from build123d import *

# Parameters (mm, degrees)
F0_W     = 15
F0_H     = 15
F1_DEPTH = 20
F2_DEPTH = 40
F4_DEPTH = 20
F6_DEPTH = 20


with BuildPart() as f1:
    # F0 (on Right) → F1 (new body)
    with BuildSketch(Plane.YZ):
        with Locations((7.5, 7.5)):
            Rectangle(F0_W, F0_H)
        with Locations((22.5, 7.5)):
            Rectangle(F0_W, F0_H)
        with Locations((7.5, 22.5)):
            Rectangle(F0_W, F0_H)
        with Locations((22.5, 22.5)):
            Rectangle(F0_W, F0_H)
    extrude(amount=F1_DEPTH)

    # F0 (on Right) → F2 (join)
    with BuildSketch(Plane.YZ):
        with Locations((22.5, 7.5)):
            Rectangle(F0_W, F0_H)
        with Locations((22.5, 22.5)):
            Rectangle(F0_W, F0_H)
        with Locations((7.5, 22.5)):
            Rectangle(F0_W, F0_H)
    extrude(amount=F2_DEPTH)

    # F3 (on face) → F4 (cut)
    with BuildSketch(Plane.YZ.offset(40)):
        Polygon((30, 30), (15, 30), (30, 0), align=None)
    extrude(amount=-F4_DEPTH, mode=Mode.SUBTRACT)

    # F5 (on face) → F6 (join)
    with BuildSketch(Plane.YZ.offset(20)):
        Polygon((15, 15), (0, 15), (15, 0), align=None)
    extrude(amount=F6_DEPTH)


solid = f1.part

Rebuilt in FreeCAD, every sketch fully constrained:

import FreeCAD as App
import Part
import Sketcher

V = App.Vector


def add_polygon(sketch, points):
    """Adds a closed chain of lines whose ends are joined by coincident constraints."""
    first, n = sketch.GeometryCount, len(points)
    for a, b in zip(points, points[1:] + points[:1]):
        sketch.addGeometry(Part.LineSegment(App.Vector(*a, 0), App.Vector(*b, 0)), False)
    for i in range(n):
        sketch.addConstraint(Sketcher.Constraint("Coincident", first + i, 2, first + (i + 1) % n, 1))

doc = App.newDocument("Part")
params = doc.addObject("Spreadsheet::Sheet", "Params")
for row, (alias, value) in enumerate([
    ("sketch1_width", "30 mm"),
    ("pad1_length", "20 mm"),
    ("sketch2_width", "15 mm"),
    ("pad2_length", "40 mm"),
    ("sketch3_width", "15 mm"),
    ("sketch3_height", "30 mm"),
    ("pocket1_length", "20 mm"),
    ("sketch4_width", "15 mm"),
    ("pad3_length", "20 mm"),
], start=1):
    params.set(f"A{row}", alias)
    params.set(f"B{row}", "=" + value)
    params.setAlias(f"B{row}", alias)

body = doc.addObject("PartDesign::Body", "Body")

# Sketch on YZ plane
sketch1 = doc.addObject("Sketcher::SketchObject", "Sketch")
body.addObject(sketch1)
sketch1.AttachmentSupport = (doc.YZ_Plane, [""])
sketch1.MapMode = "FlatFace"
add_polygon(sketch1, [(0, 0), (30, 0), (30, 30), (0, 30)])  # lines 0-3
sketch1.addConstraint([
    Sketcher.Constraint("Horizontal", 0),
    Sketcher.Constraint("Vertical", 1),
    Sketcher.Constraint("Horizontal", 2),
    Sketcher.Constraint("Vertical", 3),
    Sketcher.Constraint("Coincident", 3, 2, -1, 1),
    Sketcher.Constraint("Equal", 2, 1),
    Sketcher.Constraint("DistanceX", 0, 1, 0, 2, 30.0),
])
sketch1.setExpression("Constraints[10]", "Params.sketch1_width")
pad1 = doc.addObject("PartDesign::Pad", "Pad")
body.addObject(pad1)
pad1.Profile = sketch1
pad1.setExpression("Length", "Params.pad1_length")

# Sketch on YZ plane
sketch2 = doc.addObject("Sketcher::SketchObject", "Sketch001")
body.addObject(sketch2)
sketch2.AttachmentSupport = (doc.YZ_Plane, [""])
sketch2.MapMode = "FlatFace"
add_polygon(sketch2, [(15, 0), (30, 0), (30, 30), (0, 30), (0, 15), (15, 15)])  # lines 0-5
sketch2.addConstraint([
    Sketcher.Constraint("Horizontal", 0),
    Sketcher.Constraint("Vertical", 1),
    Sketcher.Constraint("Horizontal", 2),
    Sketcher.Constraint("Vertical", 3),
    Sketcher.Constraint("Horizontal", 4),
    Sketcher.Constraint("Vertical", 5),
    Sketcher.Constraint("PointOnObject", 0, 2, -1),
    Sketcher.Constraint("PointOnObject", 2, 2, -2),
    Sketcher.Constraint("Equal", 0, 4),
    Sketcher.Constraint("Equal", 2, 1),
    Sketcher.Constraint("Equal", 4, 3),
    Sketcher.Constraint("DistanceX", 0, 1, 0, 2, 15.0),
])
sketch2.setExpression("Constraints[17]", "Params.sketch2_width")
pad2 = doc.addObject("PartDesign::Pad", "Pad001")
body.addObject(pad2)
pad2.Profile = sketch2
pad2.setExpression("Length", "Params.pad2_length")

# Sketch on YZ plane
sketch3 = doc.addObject("Sketcher::SketchObject", "Sketch002")
body.addObject(sketch3)
sketch3.AttachmentSupport = (doc.YZ_Plane, [""])
sketch3.MapMode = "FlatFace"
sketch3.AttachmentOffset = App.Placement(V(0, 0, 40), App.Rotation())
add_polygon(sketch3, [(30, 30), (15, 30), (30, 0)])  # lines 0-2
sketch3.addConstraint([
    Sketcher.Constraint("Horizontal", 0),
    Sketcher.Constraint("Vertical", 2),
    Sketcher.Constraint("PointOnObject", 1, 2, -1),
    Sketcher.Constraint("DistanceX", 0, 2, 0, 1, 15.0),
    Sketcher.Constraint("DistanceY", 2, 1, 2, 2, 30.0),
    Sketcher.Constraint("DistanceX", -1, 1, 0, 2, 15.0),
])
sketch3.setExpression("Constraints[6]", "Params.sketch3_width")
sketch3.setExpression("Constraints[7]", "Params.sketch3_height")
pocket1 = doc.addObject("PartDesign::Pocket", "Pocket")
body.addObject(pocket1)
pocket1.Profile = sketch3
pocket1.setExpression("Length", "Params.pocket1_length")

# Sketch on YZ plane
sketch4 = doc.addObject("Sketcher::SketchObject", "Sketch003")
body.addObject(sketch4)
sketch4.AttachmentSupport = (doc.YZ_Plane, [""])
sketch4.MapMode = "FlatFace"
sketch4.AttachmentOffset = App.Placement(V(0, 0, 20), App.Rotation())
add_polygon(sketch4, [(15, 15), (0, 15), (15, 0)])  # lines 0-2
sketch4.addConstraint([
    Sketcher.Constraint("Horizontal", 0),
    Sketcher.Constraint("Vertical", 2),
    Sketcher.Constraint("PointOnObject", 0, 2, -2),
    Sketcher.Constraint("PointOnObject", 1, 2, -1),
    Sketcher.Constraint("Equal", 0, 2),
    Sketcher.Constraint("DistanceX", 0, 2, 0, 1, 15.0),
])
sketch4.setExpression("Constraints[8]", "Params.sketch4_width")
pad3 = doc.addObject("PartDesign::Pad", "Pad002")
body.addObject(pad3)
pad3.Profile = sketch4
pad3.setExpression("Length", "Params.pad3_length")

doc.recompute()
